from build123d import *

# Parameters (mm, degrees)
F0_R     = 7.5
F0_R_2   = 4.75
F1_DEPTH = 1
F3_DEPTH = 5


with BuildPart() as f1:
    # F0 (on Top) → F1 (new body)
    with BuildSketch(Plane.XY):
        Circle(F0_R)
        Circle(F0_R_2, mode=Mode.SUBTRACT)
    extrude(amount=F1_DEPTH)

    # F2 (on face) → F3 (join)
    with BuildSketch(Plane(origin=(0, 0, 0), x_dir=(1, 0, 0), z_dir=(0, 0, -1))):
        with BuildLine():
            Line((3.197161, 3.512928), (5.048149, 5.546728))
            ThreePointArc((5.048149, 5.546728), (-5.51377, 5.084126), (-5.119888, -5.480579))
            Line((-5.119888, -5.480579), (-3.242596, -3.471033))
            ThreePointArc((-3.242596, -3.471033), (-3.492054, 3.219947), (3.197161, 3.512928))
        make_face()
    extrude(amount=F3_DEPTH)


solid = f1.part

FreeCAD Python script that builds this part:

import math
import FreeCAD as App
import Part
import Sketcher
Q = App.Units.Quantity

doc = App.newDocument("Part")
params = doc.addObject("Spreadsheet::Sheet", "Params")
for row, (alias, value) in enumerate([
    ("sketch1_diameter", "15 mm"),
    ("sketch1_diameter2", "9.5 mm"),
    ("pad1_length", "1 mm"),
    ("sketch2_radius", "7.5 mm"),
    ("sketch2_radius2", "4.75 mm"),
    ("pad2_length", "5 mm"),
], start=1):
    params.set(f"A{row}", alias)
    params.set(f"B{row}", "=" + value)
    params.setAlias(f"B{row}", alias)

body = doc.addObject("PartDesign::Body", "Body")

# Sketch on XY plane
sketch1 = body.newObject("Sketcher::SketchObject", "Sketch")
sketch1.AttachmentSupport = (doc.getObject("XY_Plane"), [""])
sketch1.MapMode = "FlatFace"
sketch1.addGeometry(Part.Circle(App.Vector(0, 0, 0), App.Vector(0, 0, 1), 7.5), False)
sketch1.addGeometry(Part.Circle(App.Vector(0, 0, 0), App.Vector(0, 0, 1), 4.8), False)
sketch1.addConstraint(Sketcher.Constraint("Coincident", 0, 3, -1, 1))
sketch1.addConstraint(Sketcher.Constraint("Coincident", 1, 3, -1, 1))
sketch1.addConstraint(Sketcher.Constraint("Diameter", 0, Q("15 mm")))
sketch1.addConstraint(Sketcher.Constraint("Diameter", 1, Q("9.5 mm")))
sketch1.setExpression("Constraints[2]", "Params.sketch1_diameter")
sketch1.setExpression("Constraints[3]", "Params.sketch1_diameter2")
pad1 = body.newObject("PartDesign::Pad", "Pad")
pad1.Profile = sketch1
pad1.setExpression("Length", "Params.pad1_length")

# Sketch on XY plane
sketch2 = body.newObject("Sketcher::SketchObject", "Sketch001")
sketch2.AttachmentSupport = (doc.getObject("XY_Plane"), [""])
sketch2.MapMode = "FlatFace"
sketch2.addGeometry(Part.LineSegment(App.Vector(3.2, -3.5, 0), App.Vector(5, -5.5, 0)), False)
sketch2.addGeometry(Part.ArcOfCircle(Part.Circle(App.Vector(0, 0, 0), App.Vector(0, 0, 1), 7.5), math.radians(133), math.radians(312)), False)
sketch2.addGeometry(Part.LineSegment(App.Vector(-5.1, 5.5, 0), App.Vector(-3.2, 3.5, 0)), False)
sketch2.addGeometry(Part.ArcOfCircle(Part.Circle(App.Vector(0, 0, 0), App.Vector(0, 0, 1), 4.8), math.radians(133), math.radians(312)), False)
sketch2.addConstraint(Sketcher.Constraint("Coincident", 0, 2, 1, 2))
sketch2.addConstraint(Sketcher.Constraint("Coincident", 1, 1, 2, 1))
sketch2.addConstraint(Sketcher.Constraint("Coincident", 2, 2, 3, 1))
sketch2.addConstraint(Sketcher.Constraint("Coincident", 3, 2, 0, 1))
sketch2.addConstraint(Sketcher.Constraint("Coincident", 1, 3, -1, 1))
sketch2.addConstraint(Sketcher.Constraint("Coincident", 3, 3, -1, 1))
sketch2.addConstraint(Sketcher.Constraint("Radius", 1, Q("7.5 mm")))
sketch2.addConstraint(Sketcher.Constraint("Radius", 3, Q("4.75 mm")))
sketch2.addConstraint(Sketcher.Constraint("DistanceY", 0, 2, 3, 2, Q("2.0338 mm")))
sketch2.addConstraint(Sketcher.Constraint("DistanceX", -1, 1, 0, 2, Q("5.048149 mm")))
sketch2.addConstraint(Sketcher.Constraint("DistanceX", 1, 1, -1, 1, Q("5.119888 mm")))
sketch2.addConstraint(Sketcher.Constraint("DistanceY", 0, 2, 2, 2, Q("9.017761 mm")))
sketch2.setExpression("Constraints[6]", "Params.sketch2_radius")
sketch2.setExpression("Constraints[7]", "Params.sketch2_radius2")
pad2 = body.newObject("PartDesign::Pad", "Pad001")
pad2.Profile = sketch2
pad2.setExpression("Length", "Params.pad2_length")
pad2.Reversed = True

doc.recompute()
